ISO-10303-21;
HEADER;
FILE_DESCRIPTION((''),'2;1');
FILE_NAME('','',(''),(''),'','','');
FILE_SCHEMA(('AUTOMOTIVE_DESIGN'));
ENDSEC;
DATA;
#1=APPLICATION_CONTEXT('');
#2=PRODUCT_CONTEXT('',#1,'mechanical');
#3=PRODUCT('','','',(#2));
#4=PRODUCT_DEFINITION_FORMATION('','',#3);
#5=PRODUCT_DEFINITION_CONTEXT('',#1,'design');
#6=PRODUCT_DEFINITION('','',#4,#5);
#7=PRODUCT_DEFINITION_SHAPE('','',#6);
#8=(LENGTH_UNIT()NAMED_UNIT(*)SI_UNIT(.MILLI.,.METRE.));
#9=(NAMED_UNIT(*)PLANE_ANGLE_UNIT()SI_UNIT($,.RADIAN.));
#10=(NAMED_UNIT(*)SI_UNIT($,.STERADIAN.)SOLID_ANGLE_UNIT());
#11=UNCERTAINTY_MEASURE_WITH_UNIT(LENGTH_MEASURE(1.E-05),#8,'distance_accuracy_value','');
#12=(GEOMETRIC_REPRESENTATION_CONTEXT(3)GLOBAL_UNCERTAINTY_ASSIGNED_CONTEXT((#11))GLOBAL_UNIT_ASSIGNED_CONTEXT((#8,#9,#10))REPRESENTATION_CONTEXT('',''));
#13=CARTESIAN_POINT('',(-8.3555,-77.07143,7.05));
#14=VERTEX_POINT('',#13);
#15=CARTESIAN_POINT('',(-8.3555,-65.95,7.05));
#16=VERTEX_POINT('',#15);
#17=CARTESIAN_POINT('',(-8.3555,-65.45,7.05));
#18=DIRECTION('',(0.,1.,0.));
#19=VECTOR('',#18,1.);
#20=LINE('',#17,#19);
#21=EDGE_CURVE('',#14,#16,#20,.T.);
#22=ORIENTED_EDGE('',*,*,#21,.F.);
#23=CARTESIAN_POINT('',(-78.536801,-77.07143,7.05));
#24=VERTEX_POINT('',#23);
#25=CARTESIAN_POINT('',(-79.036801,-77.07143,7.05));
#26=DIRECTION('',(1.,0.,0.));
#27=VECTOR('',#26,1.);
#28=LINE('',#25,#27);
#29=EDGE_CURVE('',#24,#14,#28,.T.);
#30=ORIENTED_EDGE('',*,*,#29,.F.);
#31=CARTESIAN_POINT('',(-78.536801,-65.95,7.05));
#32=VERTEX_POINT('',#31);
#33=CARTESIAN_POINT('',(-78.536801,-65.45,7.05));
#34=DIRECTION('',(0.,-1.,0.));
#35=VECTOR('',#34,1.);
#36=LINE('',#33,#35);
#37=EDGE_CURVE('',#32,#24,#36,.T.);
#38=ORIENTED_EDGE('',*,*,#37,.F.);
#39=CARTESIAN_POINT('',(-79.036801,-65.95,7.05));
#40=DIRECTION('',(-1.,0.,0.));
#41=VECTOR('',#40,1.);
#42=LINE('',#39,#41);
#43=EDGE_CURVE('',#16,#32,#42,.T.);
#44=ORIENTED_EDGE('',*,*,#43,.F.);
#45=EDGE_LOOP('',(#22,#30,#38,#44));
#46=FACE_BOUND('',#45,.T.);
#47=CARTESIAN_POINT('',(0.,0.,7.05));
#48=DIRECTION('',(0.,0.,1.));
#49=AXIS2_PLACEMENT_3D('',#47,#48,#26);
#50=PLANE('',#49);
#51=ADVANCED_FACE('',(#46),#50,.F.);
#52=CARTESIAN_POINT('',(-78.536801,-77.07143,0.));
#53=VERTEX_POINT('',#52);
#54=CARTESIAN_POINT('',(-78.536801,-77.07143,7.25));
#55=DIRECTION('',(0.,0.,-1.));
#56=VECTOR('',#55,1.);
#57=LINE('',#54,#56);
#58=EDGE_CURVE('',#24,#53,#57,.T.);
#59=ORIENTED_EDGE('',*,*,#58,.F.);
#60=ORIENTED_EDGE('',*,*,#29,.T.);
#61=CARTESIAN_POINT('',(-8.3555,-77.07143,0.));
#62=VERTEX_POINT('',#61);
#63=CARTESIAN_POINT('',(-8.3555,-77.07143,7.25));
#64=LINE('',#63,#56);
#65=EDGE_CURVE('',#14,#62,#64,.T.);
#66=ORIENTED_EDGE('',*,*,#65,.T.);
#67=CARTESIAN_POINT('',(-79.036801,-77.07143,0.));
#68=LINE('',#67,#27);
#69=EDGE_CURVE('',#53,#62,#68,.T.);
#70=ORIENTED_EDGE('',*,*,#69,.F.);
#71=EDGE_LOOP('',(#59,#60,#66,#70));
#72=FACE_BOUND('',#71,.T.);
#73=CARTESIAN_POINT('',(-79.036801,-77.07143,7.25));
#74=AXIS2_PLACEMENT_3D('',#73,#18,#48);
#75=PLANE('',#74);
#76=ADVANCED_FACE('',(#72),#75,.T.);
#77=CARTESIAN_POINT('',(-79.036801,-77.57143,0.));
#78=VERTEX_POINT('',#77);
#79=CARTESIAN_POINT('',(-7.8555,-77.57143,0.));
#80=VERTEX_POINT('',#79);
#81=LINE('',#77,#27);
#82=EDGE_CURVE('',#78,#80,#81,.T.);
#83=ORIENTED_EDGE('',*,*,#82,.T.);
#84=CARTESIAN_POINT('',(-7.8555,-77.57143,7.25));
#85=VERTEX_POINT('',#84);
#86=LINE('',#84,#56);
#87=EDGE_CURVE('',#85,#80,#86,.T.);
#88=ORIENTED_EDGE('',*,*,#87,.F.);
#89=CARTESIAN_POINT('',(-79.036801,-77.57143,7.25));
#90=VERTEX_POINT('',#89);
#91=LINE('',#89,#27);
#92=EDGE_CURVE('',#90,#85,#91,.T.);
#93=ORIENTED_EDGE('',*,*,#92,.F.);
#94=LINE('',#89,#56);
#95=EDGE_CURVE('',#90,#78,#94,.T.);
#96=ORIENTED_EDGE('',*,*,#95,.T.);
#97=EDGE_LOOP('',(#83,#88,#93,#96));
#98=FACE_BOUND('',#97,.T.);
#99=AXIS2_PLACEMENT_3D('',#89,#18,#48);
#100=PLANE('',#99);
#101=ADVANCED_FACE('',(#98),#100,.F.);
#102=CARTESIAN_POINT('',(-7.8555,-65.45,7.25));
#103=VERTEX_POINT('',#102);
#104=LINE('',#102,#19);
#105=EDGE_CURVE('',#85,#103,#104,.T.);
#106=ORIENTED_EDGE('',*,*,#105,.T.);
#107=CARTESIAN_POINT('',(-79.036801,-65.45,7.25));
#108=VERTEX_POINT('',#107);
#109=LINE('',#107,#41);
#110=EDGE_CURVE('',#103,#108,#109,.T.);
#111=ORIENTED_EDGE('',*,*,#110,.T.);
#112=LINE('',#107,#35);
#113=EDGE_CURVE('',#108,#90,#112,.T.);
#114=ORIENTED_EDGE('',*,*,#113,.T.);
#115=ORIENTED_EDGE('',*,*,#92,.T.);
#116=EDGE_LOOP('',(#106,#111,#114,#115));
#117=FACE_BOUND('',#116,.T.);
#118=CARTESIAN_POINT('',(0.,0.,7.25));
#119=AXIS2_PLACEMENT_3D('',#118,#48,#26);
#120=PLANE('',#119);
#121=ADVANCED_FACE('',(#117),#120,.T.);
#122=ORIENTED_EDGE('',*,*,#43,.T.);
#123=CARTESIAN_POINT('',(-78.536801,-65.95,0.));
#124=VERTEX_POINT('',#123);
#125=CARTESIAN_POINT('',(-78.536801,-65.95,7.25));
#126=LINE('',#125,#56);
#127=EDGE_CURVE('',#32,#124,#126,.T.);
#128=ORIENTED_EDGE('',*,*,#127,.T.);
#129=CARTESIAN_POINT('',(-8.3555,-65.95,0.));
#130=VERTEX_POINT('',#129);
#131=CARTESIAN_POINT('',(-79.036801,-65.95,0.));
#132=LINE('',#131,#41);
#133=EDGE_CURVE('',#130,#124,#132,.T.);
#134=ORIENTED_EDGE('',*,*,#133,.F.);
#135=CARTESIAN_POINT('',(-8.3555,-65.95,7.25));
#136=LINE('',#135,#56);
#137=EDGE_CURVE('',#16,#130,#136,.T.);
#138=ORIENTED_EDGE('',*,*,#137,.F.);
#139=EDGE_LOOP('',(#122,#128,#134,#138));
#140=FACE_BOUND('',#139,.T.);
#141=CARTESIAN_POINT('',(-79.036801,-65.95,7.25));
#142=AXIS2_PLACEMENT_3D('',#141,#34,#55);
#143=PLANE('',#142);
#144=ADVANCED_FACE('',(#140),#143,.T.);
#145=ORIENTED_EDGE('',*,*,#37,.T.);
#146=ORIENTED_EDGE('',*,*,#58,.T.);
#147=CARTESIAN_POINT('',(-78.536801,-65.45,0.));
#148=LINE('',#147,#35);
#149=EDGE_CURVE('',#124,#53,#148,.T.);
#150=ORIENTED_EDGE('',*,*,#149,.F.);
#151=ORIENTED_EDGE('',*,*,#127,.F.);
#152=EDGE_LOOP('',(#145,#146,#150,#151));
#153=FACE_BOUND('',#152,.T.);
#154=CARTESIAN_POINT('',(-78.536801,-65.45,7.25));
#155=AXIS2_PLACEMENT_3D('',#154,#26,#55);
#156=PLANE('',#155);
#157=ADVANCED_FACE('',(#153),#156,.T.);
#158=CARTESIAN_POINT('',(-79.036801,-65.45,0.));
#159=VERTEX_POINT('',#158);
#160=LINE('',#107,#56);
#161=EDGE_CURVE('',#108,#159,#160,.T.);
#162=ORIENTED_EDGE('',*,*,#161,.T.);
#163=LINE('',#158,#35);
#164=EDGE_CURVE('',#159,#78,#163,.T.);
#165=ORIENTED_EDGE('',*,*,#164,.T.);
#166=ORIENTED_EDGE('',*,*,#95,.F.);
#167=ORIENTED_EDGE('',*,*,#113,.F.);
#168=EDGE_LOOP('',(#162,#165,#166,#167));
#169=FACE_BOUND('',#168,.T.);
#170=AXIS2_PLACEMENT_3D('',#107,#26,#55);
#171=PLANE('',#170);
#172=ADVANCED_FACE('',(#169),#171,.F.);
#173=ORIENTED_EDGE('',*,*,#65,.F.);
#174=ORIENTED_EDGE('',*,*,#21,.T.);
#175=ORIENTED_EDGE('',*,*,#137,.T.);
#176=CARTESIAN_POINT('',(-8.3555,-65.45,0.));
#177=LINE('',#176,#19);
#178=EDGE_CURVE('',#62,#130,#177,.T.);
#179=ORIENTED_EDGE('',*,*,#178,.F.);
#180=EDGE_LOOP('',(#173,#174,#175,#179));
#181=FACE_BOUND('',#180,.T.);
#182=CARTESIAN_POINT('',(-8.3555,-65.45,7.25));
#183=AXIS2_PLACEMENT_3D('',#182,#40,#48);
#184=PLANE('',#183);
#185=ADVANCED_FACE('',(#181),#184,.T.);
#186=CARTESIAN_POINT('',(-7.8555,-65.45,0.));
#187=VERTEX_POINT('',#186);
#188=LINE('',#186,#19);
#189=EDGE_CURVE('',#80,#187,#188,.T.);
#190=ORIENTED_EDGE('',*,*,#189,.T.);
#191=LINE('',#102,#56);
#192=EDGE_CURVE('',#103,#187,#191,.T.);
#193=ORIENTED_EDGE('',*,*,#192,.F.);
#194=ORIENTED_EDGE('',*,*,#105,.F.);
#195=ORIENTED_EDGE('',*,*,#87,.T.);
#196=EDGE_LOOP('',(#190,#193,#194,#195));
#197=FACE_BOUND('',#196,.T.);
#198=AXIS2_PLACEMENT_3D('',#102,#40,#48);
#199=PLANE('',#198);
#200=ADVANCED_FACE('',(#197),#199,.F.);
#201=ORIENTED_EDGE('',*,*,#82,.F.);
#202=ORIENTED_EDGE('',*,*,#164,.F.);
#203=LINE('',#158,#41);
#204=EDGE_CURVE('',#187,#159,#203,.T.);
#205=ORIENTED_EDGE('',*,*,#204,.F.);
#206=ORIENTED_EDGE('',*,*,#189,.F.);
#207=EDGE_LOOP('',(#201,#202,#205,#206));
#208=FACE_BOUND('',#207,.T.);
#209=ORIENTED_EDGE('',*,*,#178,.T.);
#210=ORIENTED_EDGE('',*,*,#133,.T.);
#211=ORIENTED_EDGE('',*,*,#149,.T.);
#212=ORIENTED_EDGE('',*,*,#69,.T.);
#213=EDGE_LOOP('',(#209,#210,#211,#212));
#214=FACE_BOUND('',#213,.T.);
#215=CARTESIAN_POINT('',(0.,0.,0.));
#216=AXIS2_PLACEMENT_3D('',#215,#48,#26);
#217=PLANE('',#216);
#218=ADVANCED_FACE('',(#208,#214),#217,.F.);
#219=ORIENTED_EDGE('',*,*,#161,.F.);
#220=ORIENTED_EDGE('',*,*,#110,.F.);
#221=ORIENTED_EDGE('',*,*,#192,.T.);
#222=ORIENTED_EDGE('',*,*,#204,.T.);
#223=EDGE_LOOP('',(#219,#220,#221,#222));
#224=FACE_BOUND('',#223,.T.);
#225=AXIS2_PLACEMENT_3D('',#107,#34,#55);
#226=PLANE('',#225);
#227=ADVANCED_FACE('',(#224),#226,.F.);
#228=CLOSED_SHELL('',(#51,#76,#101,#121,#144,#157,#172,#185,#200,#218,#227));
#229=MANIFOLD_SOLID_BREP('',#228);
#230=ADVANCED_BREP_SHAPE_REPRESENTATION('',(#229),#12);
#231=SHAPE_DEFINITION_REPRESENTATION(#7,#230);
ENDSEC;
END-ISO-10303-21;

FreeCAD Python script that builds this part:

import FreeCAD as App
import Part
import Sketcher
from FreeCAD import Vector
Q = App.Units.Quantity


def faces_at(feature, points):
    """Names of the faces that lie closest to the given points."""
    faces = feature.Shape.Faces
    near = lambda p: min(range(len(faces)), key=lambda i: faces[i].distToShape(Part.Vertex(*p))[0])
    return sorted({f"Face{near(p) + 1}" for p in points})

doc = App.newDocument("Part")
body = doc.addObject("PartDesign::Body", "Body")

# Sketch on XY plane
sketch1 = doc.addObject("Sketcher::SketchObject", "Sketch")
body.addObject(sketch1)
sketch1.AttachmentSupport = (doc.XY_Plane, [""])
sketch1.MapMode = "FlatFace"
sketch1.addGeometry([
    Part.LineSegment(Vector(-79, -65, 0), Vector(-79, -78, 0)),
    Part.LineSegment(Vector(-79, -78, 0), Vector(-8, -78, 0)),
    Part.LineSegment(Vector(-8, -78, 0), Vector(-8, -65, 0)),
    Part.LineSegment(Vector(-8, -65, 0), Vector(-79, -65, 0)),
], False)
sketch1.addConstraint([
    Sketcher.Constraint("Coincident", 0, 2, 1, 1),
    Sketcher.Constraint("Coincident", 1, 2, 2, 1),
    Sketcher.Constraint("Coincident", 2, 2, 3, 1),
    Sketcher.Constraint("Coincident", 3, 2, 0, 1),
    Sketcher.Constraint("Vertical", 0),
    Sketcher.Constraint("Horizontal", 1),
    Sketcher.Constraint("Vertical", 2),
    Sketcher.Constraint("Horizontal", 3),
    Sketcher.Constraint("DistanceY", 2, 2, -1, 1, Q("65.45 mm")),
    Sketcher.Constraint("DistanceX", 1, 1, 1, 2, Q("71.181301 mm")),
    Sketcher.Constraint("DistanceY", 0, 2, 0, 1, Q("12.12143 mm")),
    Sketcher.Constraint("DistanceX", 0, 2, -1, 1, Q("79.036801 mm")),
])
pad1 = doc.addObject("PartDesign::Pad", "Pad")
body.addObject(pad1)
pad1.Profile = sketch1
pad1.Length = 7.25
doc.recompute()

thickness = doc.addObject("PartDesign::Thickness", "Thickness")
body.addObject(thickness)
thickness.Base = (pad1, faces_at(pad1, [(-43.446, -71.511, 0)]))
thickness.Value = 0.5
thickness.Reversed = True
thickness.Join = "Intersection"

# Sketch on XY plane
sketch2 = doc.addObject("Sketcher::SketchObject", "Sketch001")
body.addObject(sketch2)
sketch2.AttachmentSupport = (doc.XY_Plane, [""])
sketch2.MapMode = "FlatFace"
sketch2.AttachmentOffset = App.Placement(Vector(0, 0, 6.75), App.Rotation())
sketch2.addGeometry([
    Part.LineSegment(Vector(-79, -66, 0), Vector(-79, -77, 0)),
    Part.LineSegment(Vector(-79, -77, 0), Vector(-8, -77, 0)),
    Part.LineSegment(Vector(-8, -77, 0), Vector(-8, -66, 0)),
    Part.LineSegment(Vector(-8, -66, 0), Vector(-79, -66, 0)),
], False)
sketch2.addConstraint([
    Sketcher.Constraint("Coincident", 0, 2, 1, 1),
    Sketcher.Constraint("Coincident", 1, 2, 2, 1),
    Sketcher.Constraint("Coincident", 2, 2, 3, 1),
    Sketcher.Constraint("Coincident", 3, 2, 0, 1),
    Sketcher.Constraint("Vertical", 0),
    Sketcher.Constraint("Horizontal", 1),
    Sketcher.Constraint("Vertical", 2),
    Sketcher.Constraint("Horizontal", 3),
    Sketcher.Constraint("DistanceY", 2, 2, -1, 1, Q("65.95 mm")),
    Sketcher.Constraint("DistanceX", 1, 1, 1, 2, Q("70.181301 mm")),
    Sketcher.Constraint("DistanceY", 0, 2, 0, 1, Q("11.12143 mm")),
    Sketcher.Constraint("DistanceX", 0, 2, -1, 1, Q("78.536801 mm")),
])
pocket1 = doc.addObject("PartDesign::Pocket", "Pocket")
body.addObject(pocket1)
pocket1.Profile = sketch2
pocket1.Length = 0.3
pocket1.Reversed = True

doc.recompute()
